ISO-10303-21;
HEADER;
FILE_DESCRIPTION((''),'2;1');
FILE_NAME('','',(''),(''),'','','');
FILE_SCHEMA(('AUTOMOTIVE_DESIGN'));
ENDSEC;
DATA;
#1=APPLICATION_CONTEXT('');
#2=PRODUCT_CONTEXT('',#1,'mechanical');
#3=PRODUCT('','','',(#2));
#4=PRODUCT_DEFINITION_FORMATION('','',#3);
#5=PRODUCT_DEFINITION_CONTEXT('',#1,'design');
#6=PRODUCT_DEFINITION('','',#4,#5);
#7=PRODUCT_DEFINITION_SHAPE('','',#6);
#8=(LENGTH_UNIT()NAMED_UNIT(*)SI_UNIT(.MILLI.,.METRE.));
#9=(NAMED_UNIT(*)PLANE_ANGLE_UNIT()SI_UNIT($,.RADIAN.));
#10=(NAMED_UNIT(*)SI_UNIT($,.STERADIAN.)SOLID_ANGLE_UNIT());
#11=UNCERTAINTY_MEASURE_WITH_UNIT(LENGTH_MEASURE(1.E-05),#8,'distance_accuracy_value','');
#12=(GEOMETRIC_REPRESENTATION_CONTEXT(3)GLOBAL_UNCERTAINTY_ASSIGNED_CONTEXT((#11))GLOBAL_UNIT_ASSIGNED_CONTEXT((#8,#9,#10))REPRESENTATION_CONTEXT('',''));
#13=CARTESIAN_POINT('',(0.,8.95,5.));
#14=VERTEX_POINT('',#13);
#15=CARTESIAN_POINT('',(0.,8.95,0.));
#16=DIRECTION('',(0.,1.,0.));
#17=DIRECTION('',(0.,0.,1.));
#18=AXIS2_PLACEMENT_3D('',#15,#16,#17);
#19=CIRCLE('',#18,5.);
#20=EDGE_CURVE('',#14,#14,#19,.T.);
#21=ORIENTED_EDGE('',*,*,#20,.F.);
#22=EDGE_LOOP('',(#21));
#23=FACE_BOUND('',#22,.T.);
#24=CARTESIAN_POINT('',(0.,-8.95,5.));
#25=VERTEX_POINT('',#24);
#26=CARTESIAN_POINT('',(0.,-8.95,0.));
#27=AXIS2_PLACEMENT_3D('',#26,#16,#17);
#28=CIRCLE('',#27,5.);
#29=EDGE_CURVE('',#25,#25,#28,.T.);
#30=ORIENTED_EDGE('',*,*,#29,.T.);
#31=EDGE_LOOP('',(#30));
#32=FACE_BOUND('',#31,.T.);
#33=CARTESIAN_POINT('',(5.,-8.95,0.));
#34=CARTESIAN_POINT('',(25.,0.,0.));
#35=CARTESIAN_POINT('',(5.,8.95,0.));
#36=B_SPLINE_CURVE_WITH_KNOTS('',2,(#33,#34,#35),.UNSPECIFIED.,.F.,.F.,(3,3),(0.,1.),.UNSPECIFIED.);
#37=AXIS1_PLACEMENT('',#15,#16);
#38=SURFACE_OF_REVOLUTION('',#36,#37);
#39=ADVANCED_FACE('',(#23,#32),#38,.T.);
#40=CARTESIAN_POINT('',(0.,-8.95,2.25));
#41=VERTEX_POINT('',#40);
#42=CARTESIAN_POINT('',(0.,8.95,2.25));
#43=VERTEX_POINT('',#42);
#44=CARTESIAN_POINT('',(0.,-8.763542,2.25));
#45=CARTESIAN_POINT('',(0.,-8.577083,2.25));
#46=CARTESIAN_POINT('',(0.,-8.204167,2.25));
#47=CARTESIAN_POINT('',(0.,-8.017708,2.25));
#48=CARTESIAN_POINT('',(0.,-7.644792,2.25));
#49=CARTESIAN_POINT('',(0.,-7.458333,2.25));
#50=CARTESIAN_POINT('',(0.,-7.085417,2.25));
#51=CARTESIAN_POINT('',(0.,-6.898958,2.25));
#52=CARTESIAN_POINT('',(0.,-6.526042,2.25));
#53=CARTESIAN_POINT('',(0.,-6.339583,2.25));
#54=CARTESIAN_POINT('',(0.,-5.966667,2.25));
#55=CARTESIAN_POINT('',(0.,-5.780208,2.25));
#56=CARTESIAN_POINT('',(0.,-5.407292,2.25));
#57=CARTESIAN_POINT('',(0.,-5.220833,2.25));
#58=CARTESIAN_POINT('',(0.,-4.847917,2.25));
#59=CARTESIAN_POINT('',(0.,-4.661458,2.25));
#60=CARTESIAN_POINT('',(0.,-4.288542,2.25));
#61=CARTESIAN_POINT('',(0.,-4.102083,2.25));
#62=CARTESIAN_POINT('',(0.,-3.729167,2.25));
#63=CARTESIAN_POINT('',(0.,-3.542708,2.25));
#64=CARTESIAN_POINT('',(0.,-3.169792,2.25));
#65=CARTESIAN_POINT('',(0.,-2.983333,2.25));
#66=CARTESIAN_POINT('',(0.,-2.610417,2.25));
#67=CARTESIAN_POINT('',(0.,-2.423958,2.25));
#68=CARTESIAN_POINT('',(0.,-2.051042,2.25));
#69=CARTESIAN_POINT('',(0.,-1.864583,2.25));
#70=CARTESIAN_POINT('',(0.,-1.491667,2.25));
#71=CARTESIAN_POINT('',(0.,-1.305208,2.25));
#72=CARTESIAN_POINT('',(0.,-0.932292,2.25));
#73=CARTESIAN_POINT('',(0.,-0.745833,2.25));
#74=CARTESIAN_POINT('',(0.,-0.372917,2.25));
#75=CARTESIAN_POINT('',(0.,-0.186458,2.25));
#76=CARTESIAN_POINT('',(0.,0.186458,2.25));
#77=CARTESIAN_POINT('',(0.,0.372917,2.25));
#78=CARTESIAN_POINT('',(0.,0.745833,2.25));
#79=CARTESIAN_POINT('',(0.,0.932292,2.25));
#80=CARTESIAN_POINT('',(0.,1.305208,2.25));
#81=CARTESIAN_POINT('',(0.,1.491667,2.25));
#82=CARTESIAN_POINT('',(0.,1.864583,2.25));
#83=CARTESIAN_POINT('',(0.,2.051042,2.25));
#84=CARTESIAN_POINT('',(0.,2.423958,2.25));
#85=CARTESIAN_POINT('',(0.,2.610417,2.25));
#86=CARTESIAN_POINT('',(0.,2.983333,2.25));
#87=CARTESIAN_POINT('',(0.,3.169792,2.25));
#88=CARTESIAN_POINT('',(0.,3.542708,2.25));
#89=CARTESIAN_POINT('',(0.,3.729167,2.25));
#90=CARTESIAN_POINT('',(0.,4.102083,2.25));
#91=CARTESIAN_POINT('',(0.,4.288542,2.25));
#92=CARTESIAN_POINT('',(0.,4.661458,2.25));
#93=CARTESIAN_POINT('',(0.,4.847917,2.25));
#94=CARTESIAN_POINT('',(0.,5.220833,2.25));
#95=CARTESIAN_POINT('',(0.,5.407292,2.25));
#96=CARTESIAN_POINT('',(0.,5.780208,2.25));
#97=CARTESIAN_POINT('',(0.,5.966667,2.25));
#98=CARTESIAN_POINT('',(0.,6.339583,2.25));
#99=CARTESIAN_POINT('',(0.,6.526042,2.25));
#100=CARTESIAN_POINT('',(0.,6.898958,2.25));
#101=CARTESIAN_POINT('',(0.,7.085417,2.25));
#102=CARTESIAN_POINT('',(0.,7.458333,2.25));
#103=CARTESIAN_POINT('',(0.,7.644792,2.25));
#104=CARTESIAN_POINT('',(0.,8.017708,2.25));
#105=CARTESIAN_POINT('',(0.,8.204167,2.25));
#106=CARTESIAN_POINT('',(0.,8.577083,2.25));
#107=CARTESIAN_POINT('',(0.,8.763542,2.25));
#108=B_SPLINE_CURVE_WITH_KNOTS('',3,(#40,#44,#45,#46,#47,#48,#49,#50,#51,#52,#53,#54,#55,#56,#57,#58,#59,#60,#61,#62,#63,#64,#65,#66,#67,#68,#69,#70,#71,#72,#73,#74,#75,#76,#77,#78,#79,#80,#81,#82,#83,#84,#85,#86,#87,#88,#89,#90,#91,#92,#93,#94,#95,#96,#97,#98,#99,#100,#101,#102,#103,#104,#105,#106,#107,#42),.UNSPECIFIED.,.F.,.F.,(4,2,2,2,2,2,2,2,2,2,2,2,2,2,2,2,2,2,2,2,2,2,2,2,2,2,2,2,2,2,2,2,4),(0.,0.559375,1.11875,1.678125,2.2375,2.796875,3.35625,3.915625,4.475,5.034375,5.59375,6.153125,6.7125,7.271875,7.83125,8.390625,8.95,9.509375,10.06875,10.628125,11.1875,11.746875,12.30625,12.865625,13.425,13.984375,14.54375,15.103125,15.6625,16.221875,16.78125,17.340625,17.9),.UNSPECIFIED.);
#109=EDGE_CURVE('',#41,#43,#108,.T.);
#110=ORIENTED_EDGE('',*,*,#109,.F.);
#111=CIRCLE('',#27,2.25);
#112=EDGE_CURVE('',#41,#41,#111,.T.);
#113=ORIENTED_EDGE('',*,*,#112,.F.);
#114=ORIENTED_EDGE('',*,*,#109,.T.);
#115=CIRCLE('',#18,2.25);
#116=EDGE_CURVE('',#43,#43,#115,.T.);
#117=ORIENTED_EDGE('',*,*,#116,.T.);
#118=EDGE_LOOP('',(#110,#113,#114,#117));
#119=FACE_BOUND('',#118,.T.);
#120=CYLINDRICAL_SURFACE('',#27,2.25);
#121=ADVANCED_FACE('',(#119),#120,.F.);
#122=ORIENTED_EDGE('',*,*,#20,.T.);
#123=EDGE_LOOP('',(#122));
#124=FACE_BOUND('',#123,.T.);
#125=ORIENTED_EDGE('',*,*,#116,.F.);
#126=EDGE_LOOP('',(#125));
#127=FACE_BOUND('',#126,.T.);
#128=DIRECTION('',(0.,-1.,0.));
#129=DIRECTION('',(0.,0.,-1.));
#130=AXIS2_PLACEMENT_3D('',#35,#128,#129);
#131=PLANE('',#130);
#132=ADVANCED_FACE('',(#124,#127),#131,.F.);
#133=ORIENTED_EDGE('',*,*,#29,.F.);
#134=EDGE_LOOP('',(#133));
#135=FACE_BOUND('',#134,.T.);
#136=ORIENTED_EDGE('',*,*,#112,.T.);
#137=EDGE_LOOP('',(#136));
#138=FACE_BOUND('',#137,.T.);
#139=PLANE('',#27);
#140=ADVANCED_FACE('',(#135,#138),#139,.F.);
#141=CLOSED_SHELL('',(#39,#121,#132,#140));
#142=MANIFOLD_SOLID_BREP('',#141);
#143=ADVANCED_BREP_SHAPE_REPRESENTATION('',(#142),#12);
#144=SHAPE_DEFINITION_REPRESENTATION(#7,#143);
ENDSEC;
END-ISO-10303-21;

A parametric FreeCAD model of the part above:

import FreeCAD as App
import Part
import Sketcher
from FreeCAD import Vector

doc = App.newDocument("Part")
body = doc.addObject("PartDesign::Body", "Body")

# Sketch on XY plane
sketch1 = body.newObject("Sketcher::SketchObject", "Sketch")
sketch1.AttachmentSupport = (doc.getObject("XY_Plane"), [""])
sketch1.MapMode = "FlatFace"
sketch1.addGeometry(Part.LineSegment(Vector(5, 8.95, 0), Vector(0, 8.95, 0)), False)
sketch1.addGeometry(Part.LineSegment(Vector(0, 8.95, 0), Vector(0, -8.95, 0)), False)
sketch1.addGeometry(Part.LineSegment(Vector(0, -8.95, 0), Vector(5, -8.95, 0)), False)
sketch1.addGeometry(Part.BSplineCurve([Vector(5, 8.95, 0), Vector(25, 0, 0), Vector(5, -8.95, 0)], [3, 3], [0, 1], False, 2, [1, 1, 1], False), False)
sketch1.addConstraint(Sketcher.Constraint("Block", 3))
sketch1.addConstraint(Sketcher.Constraint("Coincident", 0, 2, 1, 1))
sketch1.addConstraint(Sketcher.Constraint("Coincident", 1, 2, 2, 1))
sketch1.addConstraint(Sketcher.Constraint("Coincident", 2, 2, 3, 2))
sketch1.addConstraint(Sketcher.Constraint("Coincident", 3, 1, 0, 1))
sketch1.addConstraint(Sketcher.Constraint("Horizontal", 0))
sketch1.addConstraint(Sketcher.Constraint("Vertical", 1))
sketch1.addConstraint(Sketcher.Constraint("Horizontal", 2))
sketch1.addConstraint(Sketcher.Constraint("PointOnObject", 0, 2, -2))
revolution = body.newObject("PartDesign::Revolution", "Revolution")
revolution.Profile = sketch1
revolution.ReferenceAxis = (sketch1, ["V_Axis"])
revolution.Angle = 360

# Sketch on XZ plane
sketch2 = body.newObject("Sketcher::SketchObject", "Sketch001")
sketch2.AttachmentSupport = (doc.getObject("XZ_Plane"), [""])
sketch2.MapMode = "FlatFace"
sketch2.AttachmentOffset = App.Placement(Vector(0, 0, -8.95), App.Rotation())
sketch2.addGeometry(Part.Circle(Vector(0, 0, 0), Vector(0, 0, 1), 2.2), False)
sketch2.addConstraint(Sketcher.Constraint("Coincident", 0, 3, -1, 1))
sketch2.addConstraint(Sketcher.Constraint("Diameter", 0, 4.5))
pocket1 = body.newObject("PartDesign::Pocket", "Pocket")
pocket1.Profile = sketch2
pocket1.Type = "ThroughAll"
pocket1.Reversed = True

doc.recompute()
